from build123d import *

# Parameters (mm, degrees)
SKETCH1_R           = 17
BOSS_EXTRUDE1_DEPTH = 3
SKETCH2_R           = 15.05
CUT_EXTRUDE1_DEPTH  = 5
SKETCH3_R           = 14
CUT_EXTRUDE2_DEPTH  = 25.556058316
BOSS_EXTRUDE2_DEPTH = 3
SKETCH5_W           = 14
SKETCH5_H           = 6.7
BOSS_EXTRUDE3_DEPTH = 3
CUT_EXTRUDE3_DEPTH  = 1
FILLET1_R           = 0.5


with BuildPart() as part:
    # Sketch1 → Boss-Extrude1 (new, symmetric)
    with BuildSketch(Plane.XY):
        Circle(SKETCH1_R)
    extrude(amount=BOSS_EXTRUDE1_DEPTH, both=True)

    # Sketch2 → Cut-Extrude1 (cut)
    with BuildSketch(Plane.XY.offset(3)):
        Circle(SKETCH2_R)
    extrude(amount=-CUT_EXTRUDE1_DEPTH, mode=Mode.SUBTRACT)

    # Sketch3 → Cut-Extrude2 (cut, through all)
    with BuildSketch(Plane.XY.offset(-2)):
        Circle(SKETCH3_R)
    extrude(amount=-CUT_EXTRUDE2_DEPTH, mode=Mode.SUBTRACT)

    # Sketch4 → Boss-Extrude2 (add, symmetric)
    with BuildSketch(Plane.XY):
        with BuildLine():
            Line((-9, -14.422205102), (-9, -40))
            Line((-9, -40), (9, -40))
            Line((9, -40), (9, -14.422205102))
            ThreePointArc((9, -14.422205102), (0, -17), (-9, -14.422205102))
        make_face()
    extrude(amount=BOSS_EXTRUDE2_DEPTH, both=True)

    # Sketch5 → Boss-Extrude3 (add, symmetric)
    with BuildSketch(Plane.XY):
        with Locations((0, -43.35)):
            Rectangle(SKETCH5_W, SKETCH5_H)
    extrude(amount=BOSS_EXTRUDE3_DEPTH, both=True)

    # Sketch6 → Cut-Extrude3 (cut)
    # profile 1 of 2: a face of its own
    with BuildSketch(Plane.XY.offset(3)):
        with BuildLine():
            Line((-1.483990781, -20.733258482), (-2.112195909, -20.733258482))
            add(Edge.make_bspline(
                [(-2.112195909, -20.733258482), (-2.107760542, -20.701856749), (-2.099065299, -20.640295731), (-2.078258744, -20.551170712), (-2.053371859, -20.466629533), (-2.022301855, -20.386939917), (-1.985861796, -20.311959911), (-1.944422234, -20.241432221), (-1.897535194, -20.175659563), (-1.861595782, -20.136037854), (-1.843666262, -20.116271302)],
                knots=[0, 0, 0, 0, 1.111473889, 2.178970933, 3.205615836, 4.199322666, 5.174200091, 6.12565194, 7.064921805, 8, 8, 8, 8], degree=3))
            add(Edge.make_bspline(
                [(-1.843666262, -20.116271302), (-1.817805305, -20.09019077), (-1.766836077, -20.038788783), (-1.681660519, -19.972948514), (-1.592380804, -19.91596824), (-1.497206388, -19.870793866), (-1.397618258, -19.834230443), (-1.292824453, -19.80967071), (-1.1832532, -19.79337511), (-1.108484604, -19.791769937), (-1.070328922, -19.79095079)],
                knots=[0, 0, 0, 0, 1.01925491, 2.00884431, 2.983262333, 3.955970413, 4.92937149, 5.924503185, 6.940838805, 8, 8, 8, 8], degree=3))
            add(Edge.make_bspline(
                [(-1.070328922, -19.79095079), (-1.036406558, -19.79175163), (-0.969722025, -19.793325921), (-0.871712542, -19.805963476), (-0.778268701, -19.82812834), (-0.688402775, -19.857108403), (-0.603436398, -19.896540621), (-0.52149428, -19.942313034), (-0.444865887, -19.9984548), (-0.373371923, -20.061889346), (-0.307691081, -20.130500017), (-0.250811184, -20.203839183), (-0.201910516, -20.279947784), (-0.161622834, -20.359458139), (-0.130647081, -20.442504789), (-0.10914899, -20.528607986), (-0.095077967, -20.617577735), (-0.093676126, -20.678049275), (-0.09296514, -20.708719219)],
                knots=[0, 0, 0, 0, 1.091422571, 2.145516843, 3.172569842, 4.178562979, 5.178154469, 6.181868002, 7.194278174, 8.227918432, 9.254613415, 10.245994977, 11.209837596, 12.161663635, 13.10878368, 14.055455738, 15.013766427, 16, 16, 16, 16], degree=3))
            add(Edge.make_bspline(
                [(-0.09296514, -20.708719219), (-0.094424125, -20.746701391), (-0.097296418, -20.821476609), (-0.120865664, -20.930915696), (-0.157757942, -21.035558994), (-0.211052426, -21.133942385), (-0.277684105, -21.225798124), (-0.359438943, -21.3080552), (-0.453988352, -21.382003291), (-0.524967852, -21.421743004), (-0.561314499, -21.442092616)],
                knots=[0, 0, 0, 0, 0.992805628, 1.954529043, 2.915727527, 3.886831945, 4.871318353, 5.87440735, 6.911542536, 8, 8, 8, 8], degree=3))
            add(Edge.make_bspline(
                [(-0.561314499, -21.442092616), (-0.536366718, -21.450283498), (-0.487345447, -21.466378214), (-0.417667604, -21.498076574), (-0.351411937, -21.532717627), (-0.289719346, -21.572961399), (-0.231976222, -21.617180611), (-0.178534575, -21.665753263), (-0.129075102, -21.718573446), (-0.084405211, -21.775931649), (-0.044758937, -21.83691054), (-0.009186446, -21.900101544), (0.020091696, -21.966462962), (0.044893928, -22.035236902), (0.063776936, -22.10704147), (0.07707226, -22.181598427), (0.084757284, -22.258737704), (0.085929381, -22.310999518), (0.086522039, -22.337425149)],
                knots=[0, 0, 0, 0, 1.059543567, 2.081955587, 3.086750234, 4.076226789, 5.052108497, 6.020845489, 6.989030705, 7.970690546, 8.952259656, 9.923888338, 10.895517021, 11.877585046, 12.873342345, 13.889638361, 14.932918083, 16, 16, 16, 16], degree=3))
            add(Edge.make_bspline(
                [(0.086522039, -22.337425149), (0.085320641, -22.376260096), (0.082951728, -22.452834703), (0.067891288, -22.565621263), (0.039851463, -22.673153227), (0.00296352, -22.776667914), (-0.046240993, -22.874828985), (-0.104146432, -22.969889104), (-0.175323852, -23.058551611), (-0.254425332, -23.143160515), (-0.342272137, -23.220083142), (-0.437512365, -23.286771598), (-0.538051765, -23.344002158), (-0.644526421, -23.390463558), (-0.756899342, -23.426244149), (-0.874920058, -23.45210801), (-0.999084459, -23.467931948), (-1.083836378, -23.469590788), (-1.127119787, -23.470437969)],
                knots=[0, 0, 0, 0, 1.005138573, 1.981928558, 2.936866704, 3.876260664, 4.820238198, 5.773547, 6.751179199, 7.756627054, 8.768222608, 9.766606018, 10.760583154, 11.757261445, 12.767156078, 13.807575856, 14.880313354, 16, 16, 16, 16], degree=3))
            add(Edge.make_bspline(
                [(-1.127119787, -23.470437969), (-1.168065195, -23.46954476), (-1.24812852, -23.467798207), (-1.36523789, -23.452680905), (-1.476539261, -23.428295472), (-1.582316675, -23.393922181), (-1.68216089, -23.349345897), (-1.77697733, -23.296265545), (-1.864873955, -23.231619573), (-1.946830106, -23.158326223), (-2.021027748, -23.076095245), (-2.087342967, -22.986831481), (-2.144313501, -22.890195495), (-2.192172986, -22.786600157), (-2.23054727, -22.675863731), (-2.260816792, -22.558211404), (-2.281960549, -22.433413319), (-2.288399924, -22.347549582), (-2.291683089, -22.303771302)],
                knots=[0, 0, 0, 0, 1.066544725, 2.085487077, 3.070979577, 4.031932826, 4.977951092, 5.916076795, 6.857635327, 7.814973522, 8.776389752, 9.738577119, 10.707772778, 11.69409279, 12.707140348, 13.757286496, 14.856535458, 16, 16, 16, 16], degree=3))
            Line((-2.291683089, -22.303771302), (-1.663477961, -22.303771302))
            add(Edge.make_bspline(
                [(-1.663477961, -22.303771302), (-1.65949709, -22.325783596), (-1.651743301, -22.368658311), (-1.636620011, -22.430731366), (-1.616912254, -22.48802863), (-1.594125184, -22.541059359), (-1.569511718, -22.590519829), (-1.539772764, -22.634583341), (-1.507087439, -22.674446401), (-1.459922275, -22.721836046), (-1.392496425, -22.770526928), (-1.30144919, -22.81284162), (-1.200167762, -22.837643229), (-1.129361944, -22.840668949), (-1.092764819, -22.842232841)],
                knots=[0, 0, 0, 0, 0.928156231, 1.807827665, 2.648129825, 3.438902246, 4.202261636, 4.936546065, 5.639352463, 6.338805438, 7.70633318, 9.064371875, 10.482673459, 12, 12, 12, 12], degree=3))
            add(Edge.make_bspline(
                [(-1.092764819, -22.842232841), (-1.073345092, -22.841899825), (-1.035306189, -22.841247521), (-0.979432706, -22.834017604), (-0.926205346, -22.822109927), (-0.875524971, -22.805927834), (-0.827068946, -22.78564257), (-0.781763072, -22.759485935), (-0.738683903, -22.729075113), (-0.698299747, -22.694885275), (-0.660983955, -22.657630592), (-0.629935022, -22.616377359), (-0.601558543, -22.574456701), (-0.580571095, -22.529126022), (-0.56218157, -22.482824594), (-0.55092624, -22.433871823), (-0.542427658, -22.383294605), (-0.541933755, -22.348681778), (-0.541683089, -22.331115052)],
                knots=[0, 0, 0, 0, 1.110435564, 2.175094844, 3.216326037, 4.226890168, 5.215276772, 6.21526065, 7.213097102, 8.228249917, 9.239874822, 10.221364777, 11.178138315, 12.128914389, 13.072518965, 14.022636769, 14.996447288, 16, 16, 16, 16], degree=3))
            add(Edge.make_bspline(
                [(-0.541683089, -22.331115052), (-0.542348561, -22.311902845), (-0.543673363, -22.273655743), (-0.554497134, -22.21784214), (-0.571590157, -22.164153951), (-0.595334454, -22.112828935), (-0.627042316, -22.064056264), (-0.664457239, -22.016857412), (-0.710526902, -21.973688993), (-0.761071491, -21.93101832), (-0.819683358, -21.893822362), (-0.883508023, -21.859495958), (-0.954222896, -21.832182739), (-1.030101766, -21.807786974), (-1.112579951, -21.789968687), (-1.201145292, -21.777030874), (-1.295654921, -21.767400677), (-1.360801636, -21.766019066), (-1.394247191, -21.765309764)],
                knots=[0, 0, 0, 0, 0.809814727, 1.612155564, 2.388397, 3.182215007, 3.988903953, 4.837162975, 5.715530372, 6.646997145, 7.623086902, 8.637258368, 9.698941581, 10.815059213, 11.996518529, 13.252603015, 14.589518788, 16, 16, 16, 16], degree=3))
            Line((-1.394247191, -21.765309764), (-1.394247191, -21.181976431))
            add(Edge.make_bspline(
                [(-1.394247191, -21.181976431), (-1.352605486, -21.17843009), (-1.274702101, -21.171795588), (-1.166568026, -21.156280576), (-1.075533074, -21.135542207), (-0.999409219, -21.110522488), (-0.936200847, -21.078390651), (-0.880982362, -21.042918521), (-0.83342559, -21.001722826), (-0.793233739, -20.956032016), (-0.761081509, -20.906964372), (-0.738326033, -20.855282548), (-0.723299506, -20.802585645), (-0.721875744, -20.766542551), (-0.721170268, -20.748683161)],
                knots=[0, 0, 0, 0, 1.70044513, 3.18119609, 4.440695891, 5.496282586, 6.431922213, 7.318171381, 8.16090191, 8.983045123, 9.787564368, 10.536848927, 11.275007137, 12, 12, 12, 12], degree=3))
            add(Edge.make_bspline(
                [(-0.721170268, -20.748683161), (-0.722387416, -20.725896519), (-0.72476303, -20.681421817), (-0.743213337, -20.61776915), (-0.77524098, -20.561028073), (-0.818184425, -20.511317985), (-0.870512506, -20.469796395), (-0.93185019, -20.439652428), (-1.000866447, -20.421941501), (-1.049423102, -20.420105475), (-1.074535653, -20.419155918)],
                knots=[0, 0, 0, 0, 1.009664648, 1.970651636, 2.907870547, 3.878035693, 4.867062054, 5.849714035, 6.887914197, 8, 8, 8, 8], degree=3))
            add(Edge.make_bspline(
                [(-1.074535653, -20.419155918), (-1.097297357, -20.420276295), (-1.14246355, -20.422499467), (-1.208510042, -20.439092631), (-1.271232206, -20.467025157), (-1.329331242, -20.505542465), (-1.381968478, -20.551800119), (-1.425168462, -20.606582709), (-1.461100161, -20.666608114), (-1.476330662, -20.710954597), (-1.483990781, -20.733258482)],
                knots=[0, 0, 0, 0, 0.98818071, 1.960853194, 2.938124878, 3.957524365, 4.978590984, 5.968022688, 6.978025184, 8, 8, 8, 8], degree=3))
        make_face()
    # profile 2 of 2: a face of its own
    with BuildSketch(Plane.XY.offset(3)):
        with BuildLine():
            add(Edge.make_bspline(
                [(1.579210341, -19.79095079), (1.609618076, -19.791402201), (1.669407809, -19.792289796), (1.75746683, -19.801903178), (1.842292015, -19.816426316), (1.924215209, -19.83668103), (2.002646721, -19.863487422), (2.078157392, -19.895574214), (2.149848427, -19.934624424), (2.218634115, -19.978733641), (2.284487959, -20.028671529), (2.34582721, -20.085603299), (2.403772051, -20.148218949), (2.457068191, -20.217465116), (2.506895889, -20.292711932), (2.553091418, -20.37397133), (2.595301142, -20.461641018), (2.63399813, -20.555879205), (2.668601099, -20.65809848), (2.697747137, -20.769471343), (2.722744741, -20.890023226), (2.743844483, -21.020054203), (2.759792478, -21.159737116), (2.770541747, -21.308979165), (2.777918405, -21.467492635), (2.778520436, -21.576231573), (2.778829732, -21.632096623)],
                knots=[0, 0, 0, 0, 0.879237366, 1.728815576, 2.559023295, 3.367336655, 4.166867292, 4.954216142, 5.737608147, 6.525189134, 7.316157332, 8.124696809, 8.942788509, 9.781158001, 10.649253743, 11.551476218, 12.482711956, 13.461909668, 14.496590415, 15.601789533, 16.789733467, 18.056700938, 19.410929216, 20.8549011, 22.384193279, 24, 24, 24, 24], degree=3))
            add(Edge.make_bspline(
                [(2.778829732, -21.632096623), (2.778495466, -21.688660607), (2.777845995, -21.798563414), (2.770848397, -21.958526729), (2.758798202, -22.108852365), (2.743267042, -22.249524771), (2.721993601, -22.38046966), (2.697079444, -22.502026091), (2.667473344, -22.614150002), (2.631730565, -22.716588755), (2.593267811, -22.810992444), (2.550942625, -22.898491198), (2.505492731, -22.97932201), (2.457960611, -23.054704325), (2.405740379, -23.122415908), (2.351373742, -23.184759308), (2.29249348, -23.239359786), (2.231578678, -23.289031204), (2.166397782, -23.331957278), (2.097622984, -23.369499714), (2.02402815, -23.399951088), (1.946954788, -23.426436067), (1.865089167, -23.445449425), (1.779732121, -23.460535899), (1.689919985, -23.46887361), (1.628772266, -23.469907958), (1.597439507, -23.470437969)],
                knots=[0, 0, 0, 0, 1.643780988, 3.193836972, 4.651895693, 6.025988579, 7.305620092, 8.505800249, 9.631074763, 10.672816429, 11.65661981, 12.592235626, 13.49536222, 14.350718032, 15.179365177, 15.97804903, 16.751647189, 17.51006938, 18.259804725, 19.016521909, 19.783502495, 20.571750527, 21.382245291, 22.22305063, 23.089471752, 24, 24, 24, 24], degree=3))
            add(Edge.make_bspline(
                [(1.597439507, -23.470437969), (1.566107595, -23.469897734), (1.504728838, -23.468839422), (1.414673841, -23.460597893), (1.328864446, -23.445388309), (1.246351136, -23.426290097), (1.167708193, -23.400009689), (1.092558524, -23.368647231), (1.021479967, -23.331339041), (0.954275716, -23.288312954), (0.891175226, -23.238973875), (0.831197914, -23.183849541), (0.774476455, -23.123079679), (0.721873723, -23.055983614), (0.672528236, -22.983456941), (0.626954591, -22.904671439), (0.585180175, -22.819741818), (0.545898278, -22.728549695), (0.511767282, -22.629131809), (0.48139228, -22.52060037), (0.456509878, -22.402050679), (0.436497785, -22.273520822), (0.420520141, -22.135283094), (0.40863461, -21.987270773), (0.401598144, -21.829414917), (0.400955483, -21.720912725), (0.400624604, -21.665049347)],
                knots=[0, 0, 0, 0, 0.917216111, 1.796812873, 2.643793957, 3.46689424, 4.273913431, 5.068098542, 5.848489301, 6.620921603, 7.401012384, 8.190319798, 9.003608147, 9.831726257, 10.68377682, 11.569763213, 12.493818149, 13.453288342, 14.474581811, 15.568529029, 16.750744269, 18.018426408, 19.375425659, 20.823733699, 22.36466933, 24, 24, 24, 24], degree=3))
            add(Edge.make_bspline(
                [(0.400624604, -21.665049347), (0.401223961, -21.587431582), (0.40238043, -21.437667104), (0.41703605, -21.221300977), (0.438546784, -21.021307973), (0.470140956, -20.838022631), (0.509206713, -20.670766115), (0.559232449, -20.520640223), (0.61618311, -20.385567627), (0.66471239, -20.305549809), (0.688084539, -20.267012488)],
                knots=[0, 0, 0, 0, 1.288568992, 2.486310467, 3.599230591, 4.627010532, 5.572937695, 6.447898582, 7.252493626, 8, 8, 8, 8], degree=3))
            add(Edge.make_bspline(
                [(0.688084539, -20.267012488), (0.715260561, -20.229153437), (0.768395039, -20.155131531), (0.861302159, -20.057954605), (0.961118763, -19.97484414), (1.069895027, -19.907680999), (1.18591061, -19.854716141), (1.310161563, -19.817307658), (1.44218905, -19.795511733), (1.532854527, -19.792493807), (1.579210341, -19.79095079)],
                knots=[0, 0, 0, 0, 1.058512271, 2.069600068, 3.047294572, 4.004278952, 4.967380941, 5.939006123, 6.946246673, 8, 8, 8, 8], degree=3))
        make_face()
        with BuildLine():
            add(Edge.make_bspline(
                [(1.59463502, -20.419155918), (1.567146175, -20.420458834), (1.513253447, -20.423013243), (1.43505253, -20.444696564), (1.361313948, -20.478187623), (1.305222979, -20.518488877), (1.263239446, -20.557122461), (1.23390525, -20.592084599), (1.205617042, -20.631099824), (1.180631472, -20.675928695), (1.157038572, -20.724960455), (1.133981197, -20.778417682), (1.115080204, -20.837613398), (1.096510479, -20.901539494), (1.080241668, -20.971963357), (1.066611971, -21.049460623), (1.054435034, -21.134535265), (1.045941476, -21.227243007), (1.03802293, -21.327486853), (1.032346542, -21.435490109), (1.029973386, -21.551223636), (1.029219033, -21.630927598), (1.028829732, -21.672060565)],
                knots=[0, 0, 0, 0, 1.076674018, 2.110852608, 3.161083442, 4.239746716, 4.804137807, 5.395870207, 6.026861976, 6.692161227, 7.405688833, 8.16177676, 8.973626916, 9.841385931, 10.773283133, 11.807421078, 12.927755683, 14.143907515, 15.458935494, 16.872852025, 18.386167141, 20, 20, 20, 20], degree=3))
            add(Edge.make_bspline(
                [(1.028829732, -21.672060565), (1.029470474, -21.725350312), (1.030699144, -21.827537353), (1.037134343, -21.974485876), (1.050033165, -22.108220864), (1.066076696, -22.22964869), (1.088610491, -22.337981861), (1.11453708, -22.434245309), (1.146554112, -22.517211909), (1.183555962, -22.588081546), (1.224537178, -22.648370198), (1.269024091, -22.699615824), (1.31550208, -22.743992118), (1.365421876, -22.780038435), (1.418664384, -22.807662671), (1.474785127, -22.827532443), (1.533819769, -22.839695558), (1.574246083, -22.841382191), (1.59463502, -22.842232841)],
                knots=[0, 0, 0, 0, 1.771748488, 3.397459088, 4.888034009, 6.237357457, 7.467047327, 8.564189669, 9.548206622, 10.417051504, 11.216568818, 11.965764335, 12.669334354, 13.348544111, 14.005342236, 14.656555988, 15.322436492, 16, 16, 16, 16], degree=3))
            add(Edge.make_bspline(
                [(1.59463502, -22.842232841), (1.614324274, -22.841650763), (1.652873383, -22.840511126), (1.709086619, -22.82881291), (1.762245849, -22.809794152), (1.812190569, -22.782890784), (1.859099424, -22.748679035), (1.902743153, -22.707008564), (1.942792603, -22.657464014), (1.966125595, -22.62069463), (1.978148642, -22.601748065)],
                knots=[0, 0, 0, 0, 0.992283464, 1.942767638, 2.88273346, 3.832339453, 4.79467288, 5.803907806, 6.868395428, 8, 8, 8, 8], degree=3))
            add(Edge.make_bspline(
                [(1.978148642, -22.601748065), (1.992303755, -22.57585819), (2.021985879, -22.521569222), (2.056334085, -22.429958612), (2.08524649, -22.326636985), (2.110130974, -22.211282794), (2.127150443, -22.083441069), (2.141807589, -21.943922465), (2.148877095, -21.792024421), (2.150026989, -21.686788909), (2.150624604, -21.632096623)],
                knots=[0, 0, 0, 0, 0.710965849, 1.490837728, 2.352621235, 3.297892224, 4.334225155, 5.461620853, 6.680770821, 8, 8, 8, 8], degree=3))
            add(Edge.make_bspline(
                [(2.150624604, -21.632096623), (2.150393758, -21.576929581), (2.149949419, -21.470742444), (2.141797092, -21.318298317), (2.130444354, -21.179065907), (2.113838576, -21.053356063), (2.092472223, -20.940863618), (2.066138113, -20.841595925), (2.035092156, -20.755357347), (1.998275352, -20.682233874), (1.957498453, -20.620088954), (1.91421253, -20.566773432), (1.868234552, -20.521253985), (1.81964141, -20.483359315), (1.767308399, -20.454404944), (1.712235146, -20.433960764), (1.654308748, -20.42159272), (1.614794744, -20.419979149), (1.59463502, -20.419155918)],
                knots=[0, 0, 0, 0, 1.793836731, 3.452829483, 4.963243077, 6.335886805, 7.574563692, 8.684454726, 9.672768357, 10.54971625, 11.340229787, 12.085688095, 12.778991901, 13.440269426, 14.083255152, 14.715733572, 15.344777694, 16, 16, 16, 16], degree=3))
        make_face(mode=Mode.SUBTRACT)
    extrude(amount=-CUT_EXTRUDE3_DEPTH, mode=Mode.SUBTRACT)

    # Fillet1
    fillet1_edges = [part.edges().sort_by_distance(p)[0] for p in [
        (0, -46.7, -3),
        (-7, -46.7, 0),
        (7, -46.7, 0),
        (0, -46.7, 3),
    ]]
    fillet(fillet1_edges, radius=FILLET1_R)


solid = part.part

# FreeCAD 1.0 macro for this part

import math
import FreeCAD as App
import Part
import Sketcher
from FreeCAD import Vector


def edges_at(feature, points):
    """Names of the edges that pass closest to the given points."""
    edges = feature.Shape.Edges
    near = lambda p: min(range(len(edges)), key=lambda i: edges[i].distToShape(Part.Vertex(*p))[0])
    return sorted({f"Edge{near(p) + 1}" for p in points})


def add_polygon(sketch, points):
    """Adds a closed chain of lines whose ends are joined by coincident constraints."""
    first, n = sketch.GeometryCount, len(points)
    for a, b in zip(points, points[1:] + points[:1]):
        sketch.addGeometry(Part.LineSegment(App.Vector(*a, 0), App.Vector(*b, 0)), False)
    for i in range(n):
        sketch.addConstraint(Sketcher.Constraint("Coincident", first + i, 2, first + (i + 1) % n, 1))

doc = App.newDocument("Part")
body = doc.addObject("PartDesign::Body", "Body")

# Sketch on XY plane
sketch1 = doc.addObject("Sketcher::SketchObject", "Sketch")
body.addObject(sketch1)
sketch1.AttachmentSupport = (doc.XY_Plane, [""])
sketch1.MapMode = "FlatFace"
sketch1.addGeometry(Part.Circle(Vector(0, 0, 0), Vector(0, 0, 1), 17), False)
sketch1.addConstraint(Sketcher.Constraint("Coincident", 0, 3, -1, 1))
sketch1.addConstraint(Sketcher.Constraint("Diameter", 0, 34.0))
pad1 = doc.addObject("PartDesign::Pad", "Pad")
body.addObject(pad1)
pad1.Profile = sketch1
pad1.Length = 6
pad1.Midplane = True

# Sketch on XY plane
sketch2 = doc.addObject("Sketcher::SketchObject", "Sketch001")
body.addObject(sketch2)
sketch2.AttachmentSupport = (doc.XY_Plane, [""])
sketch2.MapMode = "FlatFace"
sketch2.AttachmentOffset = App.Placement(Vector(0, 0, 3), App.Rotation())
sketch2.addGeometry(Part.Circle(Vector(0, 0, 0), Vector(0, 0, 1), 15.05), False)
sketch2.addConstraint(Sketcher.Constraint("Coincident", 0, 3, -1, 1))
sketch2.addConstraint(Sketcher.Constraint("Diameter", 0, 30.1))
pocket1 = doc.addObject("PartDesign::Pocket", "Pocket")
body.addObject(pocket1)
pocket1.Profile = sketch2
pocket1.Length = 5

# Sketch on XY plane
sketch3 = doc.addObject("Sketcher::SketchObject", "Sketch002")
body.addObject(sketch3)
sketch3.AttachmentSupport = (doc.XY_Plane, [""])
sketch3.MapMode = "FlatFace"
sketch3.AttachmentOffset = App.Placement(Vector(0, 0, -2), App.Rotation())
sketch3.addGeometry(Part.Circle(Vector(0, 0, 0), Vector(0, 0, 1), 14), False)
sketch3.addConstraint(Sketcher.Constraint("Coincident", 0, 3, -1, 1))
sketch3.addConstraint(Sketcher.Constraint("Diameter", 0, 28.0))
pocket2 = doc.addObject("PartDesign::Pocket", "Pocket001")
body.addObject(pocket2)
pocket2.Profile = sketch3
pocket2.Type = "ThroughAll"

# Sketch on XY plane
sketch4 = doc.addObject("Sketcher::SketchObject", "Sketch003")
body.addObject(sketch4)
sketch4.AttachmentSupport = (doc.XY_Plane, [""])
sketch4.MapMode = "FlatFace"
sketch4.addGeometry(Part.LineSegment(Vector(-9, -14.422205, 0), Vector(-9, -40, 0)), False)
sketch4.addGeometry(Part.LineSegment(Vector(-9, -40, 0), Vector(9, -40, 0)), False)
sketch4.addGeometry(Part.LineSegment(Vector(9, -40, 0), Vector(9, -14.422205, 0)), False)
sketch4.addGeometry(Part.ArcOfCircle(Part.Circle(Vector(0, 0, 0), Vector(0, 0, 1), 17), math.radians(-121.965719), math.radians(-58.034281)), False)
sketch4.addConstraint(Sketcher.Constraint("Coincident", 0, 2, 1, 1))
sketch4.addConstraint(Sketcher.Constraint("Coincident", 1, 2, 2, 1))
sketch4.addConstraint(Sketcher.Constraint("Coincident", 2, 2, 3, 2))
sketch4.addConstraint(Sketcher.Constraint("Coincident", 3, 1, 0, 1))
sketch4.addConstraint(Sketcher.Constraint("Vertical", 0))
sketch4.addConstraint(Sketcher.Constraint("Horizontal", 1))
sketch4.addConstraint(Sketcher.Constraint("Vertical", 2))
sketch4.addConstraint(Sketcher.Constraint("Coincident", 3, 3, -1, 1))
sketch4.addConstraint(Sketcher.Constraint("Horizontal", 2, 2, 3, 1))
sketch4.addConstraint(Sketcher.Constraint("Radius", 3, 17.0))
sketch4.addConstraint(Sketcher.Constraint("DistanceX", 1, 1, 1, 2, 18.0))
sketch4.addConstraint(Sketcher.Constraint("DistanceY", 0, 2, -1, 1, 40.0))
pad2 = doc.addObject("PartDesign::Pad", "Pad001")
body.addObject(pad2)
pad2.Profile = sketch4
pad2.Length = 6
pad2.Midplane = True

# Sketch on XY plane
sketch5 = doc.addObject("Sketcher::SketchObject", "Sketch004")
body.addObject(sketch5)
sketch5.AttachmentSupport = (doc.XY_Plane, [""])
sketch5.MapMode = "FlatFace"
add_polygon(sketch5, [(-7, -40), (-7, -46.7), (7, -46.7), (7, -40)])  # lines 0-3
sketch5.addConstraint(Sketcher.Constraint("Vertical", 0))
sketch5.addConstraint(Sketcher.Constraint("Horizontal", 1))
sketch5.addConstraint(Sketcher.Constraint("Vertical", 2))
sketch5.addConstraint(Sketcher.Constraint("Horizontal", 3))
sketch5.addConstraint(Sketcher.Constraint("DistanceX", 1, 1, 1, 2, 14.0))
sketch5.addConstraint(Sketcher.Constraint("DistanceY", 0, 2, 0, 1, 6.7))
sketch5.addConstraint(Sketcher.Constraint("DistanceX", 0, 2, -1, 1, 7.0))
sketch5.addConstraint(Sketcher.Constraint("DistanceY", 2, 2, -1, 1, 40.0))
pad3 = doc.addObject("PartDesign::Pad", "Pad002")
body.addObject(pad3)
pad3.Profile = sketch5
pad3.Length = 6
pad3.Midplane = True

# Sketch on XY plane
sketch6 = doc.addObject("Sketcher::SketchObject", "Sketch005")
body.addObject(sketch6)
sketch6.AttachmentSupport = (doc.XY_Plane, [""])
sketch6.MapMode = "FlatFace"
sketch6.AttachmentOffset = App.Placement(Vector(0, 0, 3), App.Rotation())
sketch6.addGeometry(Part.LineSegment(Vector(-2.112196, -20.733258, 0), Vector(-1.483991, -20.733258, 0)), False)
sketch6.addGeometry(Part.BSplineCurve([Vector(-1.074536, -20.419156, 0), Vector(-1.097297, -20.420276, 0), Vector(-1.142464, -20.422499, 0), Vector(-1.20851, -20.439093, 0), Vector(-1.271232, -20.467025, 0), Vector(-1.329331, -20.505542, 0), Vector(-1.381968, -20.5518, 0), Vector(-1.425168, -20.606583, 0), Vector(-1.4611, -20.666608, 0), Vector(-1.476331, -20.710955, 0), Vector(-1.483991, -20.733258, 0)], [4, 1, 1, 1, 1, 1, 1, 1, 4], [0, 0.98818071, 1.960853194, 2.938124878, 3.957524365, 4.978590984, 5.968022688, 6.978025184, 8], False, 3, [1, 1, 1, 1, 1, 1, 1, 1, 1, 1, 1], False), False)
sketch6.addGeometry(Part.BSplineCurve([Vector(-0.72117, -20.748683, 0), Vector(-0.722387, -20.725897, 0), Vector(-0.724763, -20.681422, 0), Vector(-0.743213, -20.617769, 0), Vector(-0.775241, -20.561028, 0), Vector(-0.818184, -20.511318, 0), Vector(-0.870513, -20.469796, 0), Vector(-0.93185, -20.439652, 0), Vector(-1.000866, -20.421942, 0), Vector(-1.049423, -20.420105, 0), Vector(-1.074536, -20.419156, 0)], [4, 1, 1, 1, 1, 1, 1, 1, 4], [0, 1.009664648, 1.970651636, 2.907870547, 3.878035693, 4.867062054, 5.849714035, 6.887914197, 8], False, 3, [1, 1, 1, 1, 1, 1, 1, 1, 1, 1, 1], False), False)
sketch6.addGeometry(Part.BSplineCurve([Vector(-1.394247, -21.181976, 0), Vector(-1.352605, -21.17843, 0), Vector(-1.274702, -21.171796, 0), Vector(-1.166568, -21.156281, 0), Vector(-1.075533, -21.135542, 0), Vector(-0.999409, -21.110522, 0), Vector(-0.936201, -21.078391, 0), Vector(-0.880982, -21.042919, 0), Vector(-0.833426, -21.001723, 0), Vector(-0.793234, -20.956032, 0), Vector(-0.761082, -20.906964, 0), Vector(-0.738326, -20.855283, 0), Vector(-0.7233, -20.802586, 0), Vector(-0.721876, -20.766543, 0), Vector(-0.72117, -20.748683, 0)], [4, 1, 1, 1, 1, 1, 1, 1, 1, 1, 1, 1, 4], [0, 1.70044513, 3.18119609, 4.440695891, 5.496282586, 6.431922213, 7.318171381, 8.16090191, 8.983045123, 9.787564368, 10.536848927, 11.275007137, 12], False, 3, [1, 1, 1, 1, 1, 1, 1, 1, 1, 1, 1, 1, 1, 1, 1], False), False)
sketch6.addGeometry(Part.LineSegment(Vector(-1.394247, -21.181976, 0), Vector(-1.394247, -21.76531, 0)), False)
sketch6.addGeometry(Part.BSplineCurve([Vector(-0.541683, -22.331115, 0), Vector(-0.542349, -22.311903, 0), Vector(-0.543673, -22.273656, 0), Vector(-0.554497, -22.217842, 0), Vector(-0.57159, -22.164154, 0), Vector(-0.595334, -22.112829, 0), Vector(-0.627042, -22.064056, 0), Vector(-0.664457, -22.016857, 0), Vector(-0.710527, -21.973689, 0), Vector(-0.761071, -21.931018, 0), Vector(-0.819683, -21.893822, 0), Vector(-0.883508, -21.859496, 0), Vector(-0.954223, -21.832183, 0), Vector(-1.030102, -21.807787, 0), Vector(-1.11258, -21.789969, 0), Vector(-1.201145, -21.777031, 0), Vector(-1.295655, -21.767401, 0), Vector(-1.360802, -21.766019, 0), Vector(-1.394247, -21.76531, 0)], [4, 1, 1, 1, 1, 1, 1, 1, 1, 1, 1, 1, 1, 1, 1, 1, 4], [0, 0.809814727, 1.612155564, 2.388397, 3.182215007, 3.988903953, 4.837162975, 5.715530372, 6.646997145, 7.623086902, 8.637258368, 9.698941581, 10.815059213, 11.996518529, 13.252603015, 14.589518788, 16], False, 3, [1, 1, 1, 1, 1, 1, 1, 1, 1, 1, 1, 1, 1, 1, 1, 1, 1, 1, 1], False), False)
sketch6.addGeometry(Part.BSplineCurve([Vector(-1.092765, -22.842233, 0), Vector(-1.073345, -22.8419, 0), Vector(-1.035306, -22.841248, 0), Vector(-0.979433, -22.834018, 0), Vector(-0.926205, -22.82211, 0), Vector(-0.875525, -22.805928, 0), Vector(-0.827069, -22.785643, 0), Vector(-0.781763, -22.759486, 0), Vector(-0.738684, -22.729075, 0), Vector(-0.6983, -22.694885, 0), Vector(-0.660984, -22.657631, 0), Vector(-0.629935, -22.616377, 0), Vector(-0.601559, -22.574457, 0), Vector(-0.580571, -22.529126, 0), Vector(-0.562182, -22.482825, 0), Vector(-0.550926, -22.433872, 0), Vector(-0.542428, -22.383295, 0), Vector(-0.541934, -22.348682, 0), Vector(-0.541683, -22.331115, 0)], [4, 1, 1, 1, 1, 1, 1, 1, 1, 1, 1, 1, 1, 1, 1, 1, 4], [0, 1.110435564, 2.175094844, 3.216326037, 4.226890168, 5.215276772, 6.21526065, 7.213097102, 8.228249917, 9.239874822, 10.221364777, 11.178138315, 12.128914389, 13.072518965, 14.022636769, 14.996447288, 16], False, 3, [1, 1, 1, 1, 1, 1, 1, 1, 1, 1, 1, 1, 1, 1, 1, 1, 1, 1, 1], False), False)
sketch6.addGeometry(Part.BSplineCurve([Vector(-1.663478, -22.303771, 0), Vector(-1.659497, -22.325784, 0), Vector(-1.651743, -22.368658, 0), Vector(-1.63662, -22.430731, 0), Vector(-1.616912, -22.488029, 0), Vector(-1.594125, -22.541059, 0), Vector(-1.569512, -22.59052, 0), Vector(-1.539773, -22.634583, 0), Vector(-1.507087, -22.674446, 0), Vector(-1.459922, -22.721836, 0), Vector(-1.392496, -22.770527, 0), Vector(-1.301449, -22.812842, 0), Vector(-1.200168, -22.837643, 0), Vector(-1.129362, -22.840669, 0), Vector(-1.092765, -22.842233, 0)], [4, 1, 1, 1, 1, 1, 1, 1, 1, 1, 1, 1, 4], [0, 0.928156231, 1.807827665, 2.648129825, 3.438902246, 4.202261636, 4.936546065, 5.639352463, 6.338805438, 7.70633318, 9.064371875, 10.482673459, 12], False, 3, [1, 1, 1, 1, 1, 1, 1, 1, 1, 1, 1, 1, 1, 1, 1], False), False)
sketch6.addGeometry(Part.LineSegment(Vector(-1.663478, -22.303771, 0), Vector(-2.291683, -22.303771, 0)), False)
sketch6.addGeometry(Part.BSplineCurve([Vector(-1.12712, -23.470438, 0), Vector(-1.168065, -23.469545, 0), Vector(-1.248129, -23.467798, 0), Vector(-1.365238, -23.452681, 0), Vector(-1.476539, -23.428295, 0), Vector(-1.582317, -23.393922, 0), Vector(-1.682161, -23.349346, 0), Vector(-1.776977, -23.296266, 0), Vector(-1.864874, -23.23162, 0), Vector(-1.94683, -23.158326, 0), Vector(-2.021028, -23.076095, 0), Vector(-2.087343, -22.986831, 0), Vector(-2.144314, -22.890195, 0), Vector(-2.192173, -22.7866, 0), Vector(-2.230547, -22.675864, 0), Vector(-2.260817, -22.558211, 0), Vector(-2.281961, -22.433413, 0), Vector(-2.2884, -22.34755, 0), Vector(-2.291683, -22.303771, 0)], [4, 1, 1, 1, 1, 1, 1, 1, 1, 1, 1, 1, 1, 1, 1, 1, 4], [0, 1.066544725, 2.085487077, 3.070979577, 4.031932826, 4.977951092, 5.916076795, 6.857635327, 7.814973522, 8.776389752, 9.738577119, 10.707772778, 11.69409279, 12.707140348, 13.757286496, 14.856535458, 16], False, 3, [1, 1, 1, 1, 1, 1, 1, 1, 1, 1, 1, 1, 1, 1, 1, 1, 1, 1, 1], False), False)
sketch6.addGeometry(Part.BSplineCurve([Vector(0.086522, -22.337425, 0), Vector(0.085321, -22.37626, 0), Vector(0.082952, -22.452835, 0), Vector(0.067891, -22.565621, 0), Vector(0.039851, -22.673153, 0), Vector(0.002964, -22.776668, 0), Vector(-0.046241, -22.874829, 0), Vector(-0.104146, -22.969889, 0), Vector(-0.175324, -23.058552, 0), Vector(-0.254425, -23.143161, 0), Vector(-0.342272, -23.220083, 0), Vector(-0.437512, -23.286772, 0), Vector(-0.538052, -23.344002, 0), Vector(-0.644526, -23.390464, 0), Vector(-0.756899, -23.426244, 0), Vector(-0.87492, -23.452108, 0), Vector(-0.999084, -23.467932, 0), Vector(-1.083836, -23.469591, 0), Vector(-1.12712, -23.470438, 0)], [4, 1, 1, 1, 1, 1, 1, 1, 1, 1, 1, 1, 1, 1, 1, 1, 4], [0, 1.005138573, 1.981928558, 2.936866704, 3.876260664, 4.820238198, 5.773547, 6.751179199, 7.756627054, 8.768222608, 9.766606018, 10.760583154, 11.757261445, 12.767156078, 13.807575856, 14.880313354, 16], False, 3, [1, 1, 1, 1, 1, 1, 1, 1, 1, 1, 1, 1, 1, 1, 1, 1, 1, 1, 1], False), False)
sketch6.addGeometry(Part.BSplineCurve([Vector(-0.561314, -21.442093, 0), Vector(-0.536367, -21.450283, 0), Vector(-0.487345, -21.466378, 0), Vector(-0.417668, -21.498077, 0), Vector(-0.351412, -21.532718, 0), Vector(-0.289719, -21.572961, 0), Vector(-0.231976, -21.617181, 0), Vector(-0.178535, -21.665753, 0), Vector(-0.129075, -21.718573, 0), Vector(-0.084405, -21.775932, 0), Vector(-0.044759, -21.836911, 0), Vector(-0.009186, -21.900102, 0), Vector(0.020092, -21.966463, 0), Vector(0.044894, -22.035237, 0), Vector(0.063777, -22.107041, 0), Vector(0.077072, -22.181598, 0), Vector(0.084757, -22.258738, 0), Vector(0.085929, -22.311, 0), Vector(0.086522, -22.337425, 0)], [4, 1, 1, 1, 1, 1, 1, 1, 1, 1, 1, 1, 1, 1, 1, 1, 4], [0, 1.059543567, 2.081955587, 3.086750234, 4.076226789, 5.052108497, 6.020845489, 6.989030705, 7.970690546, 8.952259656, 9.923888338, 10.895517021, 11.877585046, 12.873342345, 13.889638361, 14.932918083, 16], False, 3, [1, 1, 1, 1, 1, 1, 1, 1, 1, 1, 1, 1, 1, 1, 1, 1, 1, 1, 1], False), False)
sketch6.addGeometry(Part.BSplineCurve([Vector(-0.092965, -20.708719, 0), Vector(-0.094424, -20.746701, 0), Vector(-0.097296, -20.821477, 0), Vector(-0.120866, -20.930916, 0), Vector(-0.157758, -21.035559, 0), Vector(-0.211052, -21.133942, 0), Vector(-0.277684, -21.225798, 0), Vector(-0.359439, -21.308055, 0), Vector(-0.453988, -21.382003, 0), Vector(-0.524968, -21.421743, 0), Vector(-0.561314, -21.442093, 0)], [4, 1, 1, 1, 1, 1, 1, 1, 4], [0, 0.992805628, 1.954529043, 2.915727527, 3.886831945, 4.871318353, 5.87440735, 6.911542536, 8], False, 3, [1, 1, 1, 1, 1, 1, 1, 1, 1, 1, 1], False), False)
sketch6.addGeometry(Part.BSplineCurve([Vector(-1.070329, -19.790951, 0), Vector(-1.036407, -19.791752, 0), Vector(-0.969722, -19.793326, 0), Vector(-0.871713, -19.805963, 0), Vector(-0.778269, -19.828128, 0), Vector(-0.688403, -19.857108, 0), Vector(-0.603436, -19.896541, 0), Vector(-0.521494, -19.942313, 0), Vector(-0.444866, -19.998455, 0), Vector(-0.373372, -20.061889, 0), Vector(-0.307691, -20.1305, 0), Vector(-0.250811, -20.203839, 0), Vector(-0.201911, -20.279948, 0), Vector(-0.161623, -20.359458, 0), Vector(-0.130647, -20.442505, 0), Vector(-0.109149, -20.528608, 0), Vector(-0.095078, -20.617578, 0), Vector(-0.093676, -20.678049, 0), Vector(-0.092965, -20.708719, 0)], [4, 1, 1, 1, 1, 1, 1, 1, 1, 1, 1, 1, 1, 1, 1, 1, 4], [0, 1.091422571, 2.145516843, 3.172569842, 4.178562979, 5.178154469, 6.181868002, 7.194278174, 8.227918432, 9.254613415, 10.245994977, 11.209837596, 12.161663635, 13.10878368, 14.055455738, 15.013766427, 16], False, 3, [1, 1, 1, 1, 1, 1, 1, 1, 1, 1, 1, 1, 1, 1, 1, 1, 1, 1, 1], False), False)
sketch6.addGeometry(Part.BSplineCurve([Vector(-1.843666, -20.116271, 0), Vector(-1.817805, -20.090191, 0), Vector(-1.766836, -20.038789, 0), Vector(-1.681661, -19.972949, 0), Vector(-1.592381, -19.915968, 0), Vector(-1.497206, -19.870794, 0), Vector(-1.397618, -19.83423, 0), Vector(-1.292824, -19.809671, 0), Vector(-1.183253, -19.793375, 0), Vector(-1.108485, -19.79177, 0), Vector(-1.070329, -19.790951, 0)], [4, 1, 1, 1, 1, 1, 1, 1, 4], [0, 1.01925491, 2.00884431, 2.983262333, 3.955970413, 4.92937149, 5.924503185, 6.940838805, 8], False, 3, [1, 1, 1, 1, 1, 1, 1, 1, 1, 1, 1], False), False)
sketch6.addGeometry(Part.BSplineCurve([Vector(-2.112196, -20.733258, 0), Vector(-2.107761, -20.701857, 0), Vector(-2.099065, -20.640296, 0), Vector(-2.078259, -20.551171, 0), Vector(-2.053372, -20.46663, 0), Vector(-2.022302, -20.38694, 0), Vector(-1.985862, -20.31196, 0), Vector(-1.944422, -20.241432, 0), Vector(-1.897535, -20.17566, 0), Vector(-1.861596, -20.136038, 0), Vector(-1.843666, -20.116271, 0)], [4, 1, 1, 1, 1, 1, 1, 1, 4], [0, 1.111473889, 2.178970933, 3.205615836, 4.199322666, 5.174200091, 6.12565194, 7.064921805, 8], False, 3, [1, 1, 1, 1, 1, 1, 1, 1, 1, 1, 1], False), False)
sketch6.addGeometry(Part.BSplineCurve([Vector(1.57921, -19.790951, 0), Vector(1.609618, -19.791402, 0), Vector(1.669408, -19.79229, 0), Vector(1.757467, -19.801903, 0), Vector(1.842292, -19.816426, 0), Vector(1.924215, -19.836681, 0), Vector(2.002647, -19.863487, 0), Vector(2.078157, -19.895574, 0), Vector(2.149848, -19.934624, 0), Vector(2.218634, -19.978734, 0), Vector(2.284488, -20.028672, 0), Vector(2.345827, -20.085603, 0), Vector(2.403772, -20.148219, 0), Vector(2.457068, -20.217465, 0), Vector(2.506896, -20.292712, 0), Vector(2.553091, -20.373971, 0), Vector(2.595301, -20.461641, 0), Vector(2.633998, -20.555879, 0), Vector(2.668601, -20.658098, 0), Vector(2.697747, -20.769471, 0), Vector(2.722745, -20.890023, 0), Vector(2.743844, -21.020054, 0), Vector(2.759792, -21.159737, 0), Vector(2.770542, -21.308979, 0), Vector(2.777918, -21.467493, 0), Vector(2.77852, -21.576232, 0), Vector(2.77883, -21.632097, 0)], [4, 1, 1, 1, 1, 1, 1, 1, 1, 1, 1, 1, 1, 1, 1, 1, 1, 1, 1, 1, 1, 1, 1, 1, 4], [0, 0.879237366, 1.728815576, 2.559023295, 3.367336655, 4.166867292, 4.954216142, 5.737608147, 6.525189134, 7.316157332, 8.124696809, 8.942788509, 9.781158001, 10.649253743, 11.551476218, 12.482711956, 13.461909668, 14.496590415, 15.601789533, 16.789733467, 18.056700938, 19.410929216, 20.8549011, 22.384193279, 24], False, 3, [1, 1, 1, 1, 1, 1, 1, 1, 1, 1, 1, 1, 1, 1, 1, 1, 1, 1, 1, 1, 1, 1, 1, 1, 1, 1, 1], False), False)
sketch6.addGeometry(Part.BSplineCurve([Vector(0.688085, -20.267012, 0), Vector(0.715261, -20.229153, 0), Vector(0.768395, -20.155132, 0), Vector(0.861302, -20.057955, 0), Vector(0.961119, -19.974844, 0), Vector(1.069895, -19.907681, 0), Vector(1.185911, -19.854716, 0), Vector(1.310162, -19.817308, 0), Vector(1.442189, -19.795512, 0), Vector(1.532855, -19.792494, 0), Vector(1.57921, -19.790951, 0)], [4, 1, 1, 1, 1, 1, 1, 1, 4], [0, 1.058512271, 2.069600068, 3.047294572, 4.004278952, 4.967380941, 5.939006123, 6.946246673, 8], False, 3, [1, 1, 1, 1, 1, 1, 1, 1, 1, 1, 1], False), False)
sketch6.addGeometry(Part.BSplineCurve([Vector(0.400625, -21.665049, 0), Vector(0.401224, -21.587432, 0), Vector(0.40238, -21.437667, 0), Vector(0.417036, -21.221301, 0), Vector(0.438547, -21.021308, 0), Vector(0.470141, -20.838023, 0), Vector(0.509207, -20.670766, 0), Vector(0.559232, -20.52064, 0), Vector(0.616183, -20.385568, 0), Vector(0.664712, -20.30555, 0), Vector(0.688085, -20.267012, 0)], [4, 1, 1, 1, 1, 1, 1, 1, 4], [0, 1.288568992, 2.486310467, 3.599230591, 4.627010532, 5.572937695, 6.447898582, 7.252493626, 8], False, 3, [1, 1, 1, 1, 1, 1, 1, 1, 1, 1, 1], False), False)
sketch6.addGeometry(Part.BSplineCurve([Vector(1.59744, -23.470438, 0), Vector(1.566108, -23.469898, 0), Vector(1.504729, -23.468839, 0), Vector(1.414674, -23.460598, 0), Vector(1.328864, -23.445388, 0), Vector(1.246351, -23.42629, 0), Vector(1.167708, -23.40001, 0), Vector(1.092559, -23.368647, 0), Vector(1.02148, -23.331339, 0), Vector(0.954276, -23.288313, 0), Vector(0.891175, -23.238974, 0), Vector(0.831198, -23.18385, 0), Vector(0.774476, -23.12308, 0), Vector(0.721874, -23.055984, 0), Vector(0.672528, -22.983457, 0), Vector(0.626955, -22.904671, 0), Vector(0.58518, -22.819742, 0), Vector(0.545898, -22.72855, 0), Vector(0.511767, -22.629132, 0), Vector(0.481392, -22.5206, 0), Vector(0.45651, -22.402051, 0), Vector(0.436498, -22.273521, 0), Vector(0.42052, -22.135283, 0), Vector(0.408635, -21.987271, 0), Vector(0.401598, -21.829415, 0), Vector(0.400955, -21.720913, 0), Vector(0.400625, -21.665049, 0)], [4, 1, 1, 1, 1, 1, 1, 1, 1, 1, 1, 1, 1, 1, 1, 1, 1, 1, 1, 1, 1, 1, 1, 1, 4], [0, 0.917216111, 1.796812873, 2.643793957, 3.46689424, 4.273913431, 5.068098542, 5.848489301, 6.620921603, 7.401012384, 8.190319798, 9.003608147, 9.831726257, 10.68377682, 11.569763213, 12.493818149, 13.453288342, 14.474581811, 15.568529029, 16.750744269, 18.018426408, 19.375425659, 20.823733699, 22.36466933, 24], False, 3, [1, 1, 1, 1, 1, 1, 1, 1, 1, 1, 1, 1, 1, 1, 1, 1, 1, 1, 1, 1, 1, 1, 1, 1, 1, 1, 1], False), False)
sketch6.addGeometry(Part.BSplineCurve([Vector(2.77883, -21.632097, 0), Vector(2.778495, -21.688661, 0), Vector(2.777846, -21.798563, 0), Vector(2.770848, -21.958527, 0), Vector(2.758798, -22.108852, 0), Vector(2.743267, -22.249525, 0), Vector(2.721994, -22.38047, 0), Vector(2.697079, -22.502026, 0), Vector(2.667473, -22.61415, 0), Vector(2.631731, -22.716589, 0), Vector(2.593268, -22.810992, 0), Vector(2.550943, -22.898491, 0), Vector(2.505493, -22.979322, 0), Vector(2.457961, -23.054704, 0), Vector(2.40574, -23.122416, 0), Vector(2.351374, -23.184759, 0), Vector(2.292493, -23.23936, 0), Vector(2.231579, -23.289031, 0), Vector(2.166398, -23.331957, 0), Vector(2.097623, -23.3695, 0), Vector(2.024028, -23.399951, 0), Vector(1.946955, -23.426436, 0), Vector(1.865089, -23.445449, 0), Vector(1.779732, -23.460536, 0), Vector(1.68992, -23.468874, 0), Vector(1.628772, -23.469908, 0), Vector(1.59744, -23.470438, 0)], [4, 1, 1, 1, 1, 1, 1, 1, 1, 1, 1, 1, 1, 1, 1, 1, 1, 1, 1, 1, 1, 1, 1, 1, 4], [0, 1.643780988, 3.193836972, 4.651895693, 6.025988579, 7.305620092, 8.505800249, 9.631074763, 10.672816429, 11.65661981, 12.592235626, 13.49536222, 14.350718032, 15.179365177, 15.97804903, 16.751647189, 17.51006938, 18.259804725, 19.016521909, 19.783502495, 20.571750527, 21.382245291, 22.22305063, 23.089471752, 24], False, 3, [1, 1, 1, 1, 1, 1, 1, 1, 1, 1, 1, 1, 1, 1, 1, 1, 1, 1, 1, 1, 1, 1, 1, 1, 1, 1, 1], False), False)
sketch6.addGeometry(Part.BSplineCurve([Vector(2.150625, -21.632097, 0), Vector(2.150394, -21.57693, 0), Vector(2.149949, -21.470742, 0), Vector(2.141797, -21.318298, 0), Vector(2.130444, -21.179066, 0), Vector(2.113839, -21.053356, 0), Vector(2.092472, -20.940864, 0), Vector(2.066138, -20.841596, 0), Vector(2.035092, -20.755357, 0), Vector(1.998275, -20.682234, 0), Vector(1.957498, -20.620089, 0), Vector(1.914213, -20.566773, 0), Vector(1.868235, -20.521254, 0), Vector(1.819641, -20.483359, 0), Vector(1.767308, -20.454405, 0), Vector(1.712235, -20.433961, 0), Vector(1.654309, -20.421593, 0), Vector(1.614795, -20.419979, 0), Vector(1.594635, -20.419156, 0)], [4, 1, 1, 1, 1, 1, 1, 1, 1, 1, 1, 1, 1, 1, 1, 1, 4], [0, 1.793836731, 3.452829483, 4.963243077, 6.335886805, 7.574563692, 8.684454726, 9.672768357, 10.54971625, 11.340229787, 12.085688095, 12.778991901, 13.440269426, 14.083255152, 14.715733572, 15.344777694, 16], False, 3, [1, 1, 1, 1, 1, 1, 1, 1, 1, 1, 1, 1, 1, 1, 1, 1, 1, 1, 1], False), False)
sketch6.addGeometry(Part.BSplineCurve([Vector(1.978149, -22.601748, 0), Vector(1.992304, -22.575858, 0), Vector(2.021986, -22.521569, 0), Vector(2.056334, -22.429959, 0), Vector(2.085246, -22.326637, 0), Vector(2.110131, -22.211283, 0), Vector(2.12715, -22.083441, 0), Vector(2.141808, -21.943922, 0), Vector(2.148877, -21.792024, 0), Vector(2.150027, -21.686789, 0), Vector(2.150625, -21.632097, 0)], [4, 1, 1, 1, 1, 1, 1, 1, 4], [0, 0.710965849, 1.490837728, 2.352621235, 3.297892224, 4.334225155, 5.461620853, 6.680770821, 8], False, 3, [1, 1, 1, 1, 1, 1, 1, 1, 1, 1, 1], False), False)
sketch6.addGeometry(Part.BSplineCurve([Vector(1.594635, -22.842233, 0), Vector(1.614324, -22.841651, 0), Vector(1.652873, -22.840511, 0), Vector(1.709087, -22.828813, 0), Vector(1.762246, -22.809794, 0), Vector(1.812191, -22.782891, 0), Vector(1.859099, -22.748679, 0), Vector(1.902743, -22.707009, 0), Vector(1.942793, -22.657464, 0), Vector(1.966126, -22.620695, 0), Vector(1.978149, -22.601748, 0)], [4, 1, 1, 1, 1, 1, 1, 1, 4], [0, 0.992283464, 1.942767638, 2.88273346, 3.832339453, 4.79467288, 5.803907806, 6.868395428, 8], False, 3, [1, 1, 1, 1, 1, 1, 1, 1, 1, 1, 1], False), False)
sketch6.addGeometry(Part.BSplineCurve([Vector(1.02883, -21.672061, 0), Vector(1.02947, -21.72535, 0), Vector(1.030699, -21.827537, 0), Vector(1.037134, -21.974486, 0), Vector(1.050033, -22.108221, 0), Vector(1.066077, -22.229649, 0), Vector(1.08861, -22.337982, 0), Vector(1.114537, -22.434245, 0), Vector(1.146554, -22.517212, 0), Vector(1.183556, -22.588082, 0), Vector(1.224537, -22.64837, 0), Vector(1.269024, -22.699616, 0), Vector(1.315502, -22.743992, 0), Vector(1.365422, -22.780038, 0), Vector(1.418664, -22.807663, 0), Vector(1.474785, -22.827532, 0), Vector(1.53382, -22.839696, 0), Vector(1.574246, -22.841382, 0), Vector(1.594635, -22.842233, 0)], [4, 1, 1, 1, 1, 1, 1, 1, 1, 1, 1, 1, 1, 1, 1, 1, 4], [0, 1.771748488, 3.397459088, 4.888034009, 6.237357457, 7.467047327, 8.564189669, 9.548206622, 10.417051504, 11.216568818, 11.965764335, 12.669334354, 13.348544111, 14.005342236, 14.656555988, 15.322436492, 16], False, 3, [1, 1, 1, 1, 1, 1, 1, 1, 1, 1, 1, 1, 1, 1, 1, 1, 1, 1, 1], False), False)
sketch6.addGeometry(Part.BSplineCurve([Vector(1.594635, -20.419156, 0), Vector(1.567146, -20.420459, 0), Vector(1.513253, -20.423013, 0), Vector(1.435053, -20.444697, 0), Vector(1.361314, -20.478188, 0), Vector(1.305223, -20.518489, 0), Vector(1.263239, -20.557122, 0), Vector(1.233905, -20.592085, 0), Vector(1.205617, -20.6311, 0), Vector(1.180631, -20.675929, 0), Vector(1.157039, -20.72496, 0), Vector(1.133981, -20.778418, 0), Vector(1.11508, -20.837613, 0), Vector(1.09651, -20.901539, 0), Vector(1.080242, -20.971963, 0), Vector(1.066612, -21.049461, 0), Vector(1.054435, -21.134535, 0), Vector(1.045941, -21.227243, 0), Vector(1.038023, -21.327487, 0), Vector(1.032347, -21.43549, 0), Vector(1.029973, -21.551224, 0), Vector(1.029219, -21.630928, 0), Vector(1.02883, -21.672061, 0)], [4, 1, 1, 1, 1, 1, 1, 1, 1, 1, 1, 1, 1, 1, 1, 1, 1, 1, 1, 1, 4], [0, 1.076674018, 2.110852608, 3.161083442, 4.239746716, 4.804137807, 5.395870207, 6.026861976, 6.692161227, 7.405688833, 8.16177676, 8.973626916, 9.841385931, 10.773283133, 11.807421078, 12.927755683, 14.143907515, 15.458935494, 16.872852025, 18.386167141, 20], False, 3, [1, 1, 1, 1, 1, 1, 1, 1, 1, 1, 1, 1, 1, 1, 1, 1, 1, 1, 1, 1, 1, 1, 1], False), False)
sketch6.addConstraint(Sketcher.Constraint("Block", 1))
sketch6.addConstraint(Sketcher.Constraint("Block", 2))
sketch6.addConstraint(Sketcher.Constraint("Block", 3))
sketch6.addConstraint(Sketcher.Constraint("Block", 5))
sketch6.addConstraint(Sketcher.Constraint("Block", 6))
sketch6.addConstraint(Sketcher.Constraint("Block", 7))
sketch6.addConstraint(Sketcher.Constraint("Block", 9))
sketch6.addConstraint(Sketcher.Constraint("Block", 10))
sketch6.addConstraint(Sketcher.Constraint("Block", 11))
sketch6.addConstraint(Sketcher.Constraint("Block", 12))
sketch6.addConstraint(Sketcher.Constraint("Block", 13))
sketch6.addConstraint(Sketcher.Constraint("Block", 14))
sketch6.addConstraint(Sketcher.Constraint("Block", 15))
sketch6.addConstraint(Sketcher.Constraint("Block", 16))
sketch6.addConstraint(Sketcher.Constraint("Block", 17))
sketch6.addConstraint(Sketcher.Constraint("Block", 18))
sketch6.addConstraint(Sketcher.Constraint("Block", 19))
sketch6.addConstraint(Sketcher.Constraint("Block", 20))
sketch6.addConstraint(Sketcher.Constraint("Block", 21))
sketch6.addConstraint(Sketcher.Constraint("Block", 22))
sketch6.addConstraint(Sketcher.Constraint("Block", 23))
sketch6.addConstraint(Sketcher.Constraint("Block", 24))
sketch6.addConstraint(Sketcher.Constraint("Block", 25))
sketch6.addConstraint(Sketcher.Constraint("Coincident", 0, 2, 1, 2))
sketch6.addConstraint(Sketcher.Constraint("Coincident", 3, 1, 4, 1))
sketch6.addConstraint(Sketcher.Constraint("Coincident", 4, 2, 5, 2))
sketch6.addConstraint(Sketcher.Constraint("Coincident", 7, 1, 8, 1))
sketch6.addConstraint(Sketcher.Constraint("Coincident", 8, 2, 9, 2))
sketch6.addConstraint(Sketcher.Constraint("Coincident", 15, 1, 0, 1))
pocket3 = doc.addObject("PartDesign::Pocket", "Pocket002")
body.addObject(pocket3)
pocket3.Profile = sketch6
pocket3.Length = 1
doc.recompute()

fillet = doc.addObject("PartDesign::Fillet", "Fillet")
body.addObject(fillet)
fillet.Base = (pocket3, edges_at(pocket3, [
    (0, -46.7, -3),
    (-7, -46.7, 0),
    (7, -46.7, 0),
    (0, -46.7, 3),
]))
fillet.Radius = 0.5

doc.recompute()
